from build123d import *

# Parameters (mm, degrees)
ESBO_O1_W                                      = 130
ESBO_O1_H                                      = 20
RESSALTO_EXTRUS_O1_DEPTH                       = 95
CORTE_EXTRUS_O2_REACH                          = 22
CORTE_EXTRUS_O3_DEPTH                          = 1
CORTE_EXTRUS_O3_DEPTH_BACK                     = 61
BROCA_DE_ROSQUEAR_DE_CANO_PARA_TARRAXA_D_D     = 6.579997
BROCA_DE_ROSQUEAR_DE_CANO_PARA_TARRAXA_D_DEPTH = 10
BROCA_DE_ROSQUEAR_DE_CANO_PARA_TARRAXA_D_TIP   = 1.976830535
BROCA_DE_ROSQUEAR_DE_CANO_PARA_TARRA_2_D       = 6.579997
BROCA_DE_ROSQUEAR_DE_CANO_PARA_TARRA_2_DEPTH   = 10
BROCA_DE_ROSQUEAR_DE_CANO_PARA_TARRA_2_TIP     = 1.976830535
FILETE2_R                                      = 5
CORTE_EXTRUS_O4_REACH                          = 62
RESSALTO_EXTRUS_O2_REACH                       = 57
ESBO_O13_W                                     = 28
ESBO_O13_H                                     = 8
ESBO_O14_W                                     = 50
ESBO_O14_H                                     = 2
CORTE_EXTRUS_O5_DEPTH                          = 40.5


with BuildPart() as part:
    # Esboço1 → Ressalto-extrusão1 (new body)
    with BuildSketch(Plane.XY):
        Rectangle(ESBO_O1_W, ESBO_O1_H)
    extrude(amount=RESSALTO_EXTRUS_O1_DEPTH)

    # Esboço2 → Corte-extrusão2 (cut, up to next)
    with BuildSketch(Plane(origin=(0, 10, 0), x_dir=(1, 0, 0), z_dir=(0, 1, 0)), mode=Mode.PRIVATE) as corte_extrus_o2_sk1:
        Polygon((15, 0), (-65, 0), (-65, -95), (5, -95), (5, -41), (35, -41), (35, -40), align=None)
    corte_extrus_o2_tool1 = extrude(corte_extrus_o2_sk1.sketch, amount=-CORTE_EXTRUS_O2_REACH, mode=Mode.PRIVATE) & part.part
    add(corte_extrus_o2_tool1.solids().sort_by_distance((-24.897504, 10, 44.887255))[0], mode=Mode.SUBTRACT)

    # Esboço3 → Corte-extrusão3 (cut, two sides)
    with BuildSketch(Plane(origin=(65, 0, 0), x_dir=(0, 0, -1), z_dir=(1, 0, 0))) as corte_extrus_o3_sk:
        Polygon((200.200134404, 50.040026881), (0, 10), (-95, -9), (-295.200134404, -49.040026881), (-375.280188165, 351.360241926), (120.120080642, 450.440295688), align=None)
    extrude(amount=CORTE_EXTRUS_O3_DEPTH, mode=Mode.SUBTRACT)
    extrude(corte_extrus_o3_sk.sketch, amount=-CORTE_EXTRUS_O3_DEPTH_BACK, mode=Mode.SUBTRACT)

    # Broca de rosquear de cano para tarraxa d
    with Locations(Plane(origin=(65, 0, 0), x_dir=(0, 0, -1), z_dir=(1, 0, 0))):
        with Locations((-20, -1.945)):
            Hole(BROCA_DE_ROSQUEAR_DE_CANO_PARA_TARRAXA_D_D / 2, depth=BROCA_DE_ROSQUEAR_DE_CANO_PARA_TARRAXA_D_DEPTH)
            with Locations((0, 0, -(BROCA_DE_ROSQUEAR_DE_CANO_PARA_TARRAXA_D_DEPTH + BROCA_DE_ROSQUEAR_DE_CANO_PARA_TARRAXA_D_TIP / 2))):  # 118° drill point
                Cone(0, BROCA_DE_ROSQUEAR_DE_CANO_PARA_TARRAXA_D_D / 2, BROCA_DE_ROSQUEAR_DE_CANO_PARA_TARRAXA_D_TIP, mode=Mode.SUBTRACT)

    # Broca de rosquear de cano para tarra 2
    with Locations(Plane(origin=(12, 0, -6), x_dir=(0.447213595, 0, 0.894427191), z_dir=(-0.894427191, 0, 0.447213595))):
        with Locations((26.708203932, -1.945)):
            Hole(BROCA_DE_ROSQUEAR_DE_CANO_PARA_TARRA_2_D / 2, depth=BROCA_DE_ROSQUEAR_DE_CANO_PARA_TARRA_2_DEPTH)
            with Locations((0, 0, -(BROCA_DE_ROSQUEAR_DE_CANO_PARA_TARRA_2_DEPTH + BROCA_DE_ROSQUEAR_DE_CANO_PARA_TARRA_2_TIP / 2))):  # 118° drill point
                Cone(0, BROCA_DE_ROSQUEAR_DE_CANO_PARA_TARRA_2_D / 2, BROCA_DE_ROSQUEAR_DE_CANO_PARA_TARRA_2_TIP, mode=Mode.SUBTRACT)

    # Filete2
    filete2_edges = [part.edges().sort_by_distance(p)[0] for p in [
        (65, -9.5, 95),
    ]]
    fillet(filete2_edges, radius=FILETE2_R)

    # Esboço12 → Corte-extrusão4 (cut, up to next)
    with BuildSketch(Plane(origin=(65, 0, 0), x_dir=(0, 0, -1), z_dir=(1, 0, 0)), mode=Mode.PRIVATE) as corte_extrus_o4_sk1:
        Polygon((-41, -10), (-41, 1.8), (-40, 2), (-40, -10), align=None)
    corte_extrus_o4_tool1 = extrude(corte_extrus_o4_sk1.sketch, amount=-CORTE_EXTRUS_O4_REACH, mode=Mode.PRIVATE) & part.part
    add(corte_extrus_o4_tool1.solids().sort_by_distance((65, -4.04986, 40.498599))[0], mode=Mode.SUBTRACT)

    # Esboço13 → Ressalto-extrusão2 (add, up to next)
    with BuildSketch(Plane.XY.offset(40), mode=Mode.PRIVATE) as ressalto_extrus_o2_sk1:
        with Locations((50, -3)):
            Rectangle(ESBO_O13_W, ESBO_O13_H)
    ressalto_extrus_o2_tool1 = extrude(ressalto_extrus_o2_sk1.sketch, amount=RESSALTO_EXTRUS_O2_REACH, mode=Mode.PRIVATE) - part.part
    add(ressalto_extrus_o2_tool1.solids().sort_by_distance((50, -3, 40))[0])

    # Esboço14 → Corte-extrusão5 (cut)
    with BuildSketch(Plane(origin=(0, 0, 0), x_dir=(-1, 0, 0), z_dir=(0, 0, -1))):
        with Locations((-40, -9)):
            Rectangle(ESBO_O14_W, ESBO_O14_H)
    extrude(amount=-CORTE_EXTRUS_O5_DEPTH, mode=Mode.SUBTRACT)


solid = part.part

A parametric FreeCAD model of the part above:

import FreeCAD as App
import Part
import Sketcher
from FreeCAD import Vector
Q = App.Units.Quantity


def edges_at(feature, points):
    """Names of the edges that pass closest to the given points."""
    edges = feature.Shape.Edges
    near = lambda p: min(range(len(edges)), key=lambda i: edges[i].distToShape(Part.Vertex(*p))[0])
    return sorted({f"Edge{near(p) + 1}" for p in points})

doc = App.newDocument("Part")
body = doc.addObject("PartDesign::Body", "Body")
body.AllowCompound = True

# Sketch on XY plane
sketch1 = doc.addObject("Sketcher::SketchObject", "Sketch")
body.addObject(sketch1)
sketch1.AttachmentSupport = (doc.XY_Plane, [""])
sketch1.MapMode = "FlatFace"
sketch1.addGeometry(Part.LineSegment(Vector(-65, 10, 0), Vector(-65, -10, 0)), False)
sketch1.addGeometry(Part.LineSegment(Vector(-65, -10, 0), Vector(65, -10, 0)), False)
sketch1.addGeometry(Part.LineSegment(Vector(65, -10, 0), Vector(65, 10, 0)), False)
sketch1.addGeometry(Part.LineSegment(Vector(65, 10, 0), Vector(-65, 10, 0)), False)
sketch1.addConstraint(Sketcher.Constraint("Coincident", 0, 2, 1, 1))
sketch1.addConstraint(Sketcher.Constraint("Coincident", 1, 2, 2, 1))
sketch1.addConstraint(Sketcher.Constraint("Coincident", 2, 2, 3, 1))
sketch1.addConstraint(Sketcher.Constraint("Coincident", 3, 2, 0, 1))
sketch1.addConstraint(Sketcher.Constraint("Vertical", 0))
sketch1.addConstraint(Sketcher.Constraint("Horizontal", 1))
sketch1.addConstraint(Sketcher.Constraint("Vertical", 2))
sketch1.addConstraint(Sketcher.Constraint("Horizontal", 3))
sketch1.addConstraint(Sketcher.Constraint("Symmetric", 0, 2, 2, 2, -1, 1))
sketch1.addConstraint(Sketcher.Constraint("DistanceX", 1, 1, 1, 2, Q("130 mm")))
sketch1.addConstraint(Sketcher.Constraint("DistanceY", 0, 2, 0, 1, Q("20 mm")))
pad1 = doc.addObject("PartDesign::Pad", "Pad")
body.addObject(pad1)
pad1.Profile = sketch1
pad1.Length = 95

# Sketch on XZ plane
sketch2 = doc.addObject("Sketcher::SketchObject", "Sketch001")
body.addObject(sketch2)
sketch2.AttachmentSupport = (doc.XZ_Plane, [""])
sketch2.MapMode = "FlatFace"
sketch2.AttachmentOffset = App.Placement(Vector(0, 0, -10), App.Rotation())
sketch2.addGeometry(Part.LineSegment(Vector(15, 0, 0), Vector(-65, 0, 0)), False)
sketch2.addGeometry(Part.LineSegment(Vector(-65, 0, 0), Vector(-65, 95, 0)), False)
sketch2.addGeometry(Part.LineSegment(Vector(-65, 95, 0), Vector(5, 95, 0)), False)
sketch2.addGeometry(Part.LineSegment(Vector(5, 95, 0), Vector(5, 41, 0)), False)
sketch2.addGeometry(Part.LineSegment(Vector(5, 41, 0), Vector(35, 41, 0)), False)
sketch2.addGeometry(Part.LineSegment(Vector(35, 41, 0), Vector(35, 40, 0)), False)
sketch2.addGeometry(Part.LineSegment(Vector(35, 40, 0), Vector(15, 0, 0)), False)
sketch2.addConstraint(Sketcher.Constraint("Coincident", 0, 2, 1, 1))
sketch2.addConstraint(Sketcher.Constraint("Coincident", 1, 2, 2, 1))
sketch2.addConstraint(Sketcher.Constraint("Coincident", 2, 2, 3, 1))
sketch2.addConstraint(Sketcher.Constraint("Coincident", 3, 2, 4, 1))
sketch2.addConstraint(Sketcher.Constraint("Coincident", 4, 2, 5, 1))
sketch2.addConstraint(Sketcher.Constraint("Coincident", 5, 2, 6, 1))
sketch2.addConstraint(Sketcher.Constraint("Coincident", 6, 2, 0, 1))
sketch2.addConstraint(Sketcher.Constraint("Horizontal", 0))
sketch2.addConstraint(Sketcher.Constraint("Vertical", 1))
sketch2.addConstraint(Sketcher.Constraint("Horizontal", 2))
sketch2.addConstraint(Sketcher.Constraint("Vertical", 3))
sketch2.addConstraint(Sketcher.Constraint("Horizontal", 4))
sketch2.addConstraint(Sketcher.Constraint("Vertical", 5))
sketch2.addConstraint(Sketcher.Constraint("PointOnObject", 0, 2, -1))
sketch2.addConstraint(Sketcher.Constraint("DistanceX", 0, 2, 0, 1, Q("80 mm")))
sketch2.addConstraint(Sketcher.Constraint("DistanceX", 2, 1, 2, 2, Q("70 mm")))
sketch2.addConstraint(Sketcher.Constraint("DistanceX", 4, 1, 4, 2, Q("30 mm")))
sketch2.addConstraint(Sketcher.Constraint("DistanceY", 1, 1, 1, 2, Q("95 mm")))
sketch2.addConstraint(Sketcher.Constraint("DistanceY", 3, 2, 3, 1, Q("54 mm")))
sketch2.addConstraint(Sketcher.Constraint("DistanceY", 5, 2, 5, 1, Q("1 mm")))
sketch2.addConstraint(Sketcher.Constraint("DistanceX", 0, 2, -1, 1, Q("65 mm")))
pocket1 = doc.addObject("PartDesign::Pocket", "Pocket")
body.addObject(pocket1)
pocket1.Profile = sketch2
pocket1.Type = "UpToFirst"
pocket1.Reversed = True

# Sketch on YZ plane
sketch3 = doc.addObject("Sketcher::SketchObject", "Sketch002")
body.addObject(sketch3)
sketch3.AttachmentSupport = (doc.YZ_Plane, [""])
sketch3.MapMode = "FlatFace"
sketch3.AttachmentOffset = App.Placement(Vector(0, 0, 65), App.Rotation())
sketch3.addGeometry(Part.LineSegment(Vector(-49, 295, 0), Vector(50, -200, 0)), False)
sketch3.addGeometry(Part.LineSegment(Vector(50, -200, 0), Vector(450, -120, 0)), False)
sketch3.addGeometry(Part.LineSegment(Vector(450, -120, 0), Vector(351, 375, 0)), False)
sketch3.addGeometry(Part.LineSegment(Vector(351, 375, 0), Vector(-49, 295, 0)), False)
sketch3.addConstraint(Sketcher.Constraint("Coincident", 0, 2, 1, 1))
sketch3.addConstraint(Sketcher.Constraint("Coincident", 1, 2, 2, 1))
sketch3.addConstraint(Sketcher.Constraint("Coincident", 2, 2, 3, 1))
sketch3.addConstraint(Sketcher.Constraint("Coincident", 3, 2, 0, 1))
sketch3.addConstraint(Sketcher.Constraint("Perpendicular", 0, 1))
sketch3.addConstraint(Sketcher.Constraint("Perpendicular", 1, 2))
sketch3.addConstraint(Sketcher.Constraint("Perpendicular", 2, 3))
sketch3.addConstraint(Sketcher.Constraint("DistanceY", 1, 2, -1, 1, Q("120.120081 mm")))
sketch3.addConstraint(Sketcher.Constraint("DistanceX", -1, 1, 2, 2, Q("351.360242 mm")))
sketch3.addConstraint(Sketcher.Constraint("DistanceY", -1, 1, 2, 2, Q("375.280188 mm")))
sketch3.addConstraint(Sketcher.Constraint("DistanceX", 0, 2, 1, 2, Q("400.400269 mm")))
sketch3.addConstraint(Sketcher.Constraint("Distance", 0, Q("505.211128 mm")))
pocket2 = doc.addObject("PartDesign::Pocket", "Pocket001")
body.addObject(pocket2)
pocket2.Profile = sketch3
pocket2.Type = "ThroughAll"
pocket2.Midplane = True

# Sketch on YZ plane
sketch4 = doc.addObject("Sketcher::SketchObject", "Sketch003")
body.addObject(sketch4)
sketch4.AttachmentSupport = (doc.YZ_Plane, [""])
sketch4.MapMode = "FlatFace"
sketch4.AttachmentOffset = App.Placement(Vector(0, 0, 65), App.Rotation())
sketch4.addGeometry(Part.Circle(Vector(-1.9, 20, 0), Vector(0, 0, 1), 3.3), False)
sketch4.addConstraint(Sketcher.Constraint("DistanceY", -1, 1, 0, 3, Q("20 mm")))
sketch4.addConstraint(Sketcher.Constraint("Diameter", 0, Q("6.579997 mm")))
sketch4.addConstraint(Sketcher.Constraint("DistanceX", 0, 3, -1, 1, Q("1.945 mm")))
doc.recompute()
hole = doc.addObject("PartDesign::Hole", "Hole")
body.addObject(hole)
hole.Profile = sketch4
hole.ThreadType = "None"
hole.Diameter = 6.579997
hole.DepthType = "Dimension"
hole.Depth = 10
hole.DrillPoint = "Angled"
hole.DrillPointAngle = 118

# Sketch on an angled plane
sketch5 = doc.addObject("Sketcher::SketchObject", "Sketch004")
body.addObject(sketch5)
sketch5.Placement = App.Placement(Vector(12, 0, -6), App.Rotation(Vector(0.447213595, 0, 0.894427191), Vector(0, 1, 0), Vector(-0.894427191, 0, 0.447213595), "ZXY"))
sketch5.addGeometry(Part.Circle(Vector(26.7, -1.9, 0), Vector(0, 0, 1), 3.3), False)
sketch5.addConstraint(Sketcher.Constraint("Diameter", 0, Q("6.579997 mm")))
sketch5.addConstraint(Sketcher.Constraint("DistanceY", 0, 3, -1, 1, Q("1.945 mm")))
sketch5.addConstraint(Sketcher.Constraint("DistanceX", -1, 1, 0, 3, Q("26.708204 mm")))
doc.recompute()
hole2 = doc.addObject("PartDesign::Hole", "Hole001")
body.addObject(hole2)
hole2.Profile = sketch5
hole2.ThreadType = "None"
hole2.Diameter = 6.579997
hole2.DepthType = "Dimension"
hole2.Depth = 10
hole2.DrillPoint = "Angled"
hole2.DrillPointAngle = 118
doc.recompute()

fillet = doc.addObject("PartDesign::Fillet", "Fillet")
body.addObject(fillet)
fillet.Base = (hole2, edges_at(hole2, [(65, -9.5, 95)]))
fillet.Radius = 5

# Sketch on YZ plane
sketch6 = doc.addObject("Sketcher::SketchObject", "Sketch005")
body.addObject(sketch6)
sketch6.AttachmentSupport = (doc.YZ_Plane, [""])
sketch6.MapMode = "FlatFace"
sketch6.AttachmentOffset = App.Placement(Vector(0, 0, 65), App.Rotation())
sketch6.addGeometry(Part.LineSegment(Vector(1.8, 41, 0), Vector(-10, 41, 0)), False)
sketch6.addGeometry(Part.LineSegment(Vector(-10, 41, 0), Vector(-10, 40, 0)), False)
sketch6.addGeometry(Part.LineSegment(Vector(-10, 40, 0), Vector(2, 40, 0)), False)
sketch6.addGeometry(Part.LineSegment(Vector(2, 40, 0), Vector(1.8, 41, 0)), False)
sketch6.addConstraint(Sketcher.Constraint("Coincident", 0, 2, 1, 1))
sketch6.addConstraint(Sketcher.Constraint("Coincident", 1, 2, 2, 1))
sketch6.addConstraint(Sketcher.Constraint("Coincident", 2, 2, 3, 1))
sketch6.addConstraint(Sketcher.Constraint("Coincident", 3, 2, 0, 1))
sketch6.addConstraint(Sketcher.Constraint("Horizontal", 0))
sketch6.addConstraint(Sketcher.Constraint("Vertical", 1))
sketch6.addConstraint(Sketcher.Constraint("Horizontal", 2))
sketch6.addConstraint(Sketcher.Constraint("DistanceX", 2, 1, 2, 2, Q("12 mm")))
sketch6.addConstraint(Sketcher.Constraint("DistanceY", 1, 2, 1, 1, Q("1 mm")))
sketch6.addConstraint(Sketcher.Constraint("DistanceX", 0, 2, 0, 1, Q("11.8 mm")))
sketch6.addConstraint(Sketcher.Constraint("DistanceX", 0, 2, -1, 1, Q("10 mm")))
sketch6.addConstraint(Sketcher.Constraint("DistanceY", -1, 1, 0, 2, Q("41 mm")))
pocket3 = doc.addObject("PartDesign::Pocket", "Pocket002")
body.addObject(pocket3)
pocket3.Profile = sketch6
pocket3.Type = "UpToFirst"

# Sketch on XY plane
sketch7 = doc.addObject("Sketcher::SketchObject", "Sketch006")
body.addObject(sketch7)
sketch7.AttachmentSupport = (doc.XY_Plane, [""])
sketch7.MapMode = "FlatFace"
sketch7.AttachmentOffset = App.Placement(Vector(0, 0, 40), App.Rotation())
sketch7.addGeometry(Part.LineSegment(Vector(36, 1, 0), Vector(36, -7, 0)), False)
sketch7.addGeometry(Part.LineSegment(Vector(36, -7, 0), Vector(64, -7, 0)), False)
sketch7.addGeometry(Part.LineSegment(Vector(64, -7, 0), Vector(64, 1, 0)), False)
sketch7.addGeometry(Part.LineSegment(Vector(64, 1, 0), Vector(36, 1, 0)), False)
sketch7.addConstraint(Sketcher.Constraint("Coincident", 0, 2, 1, 1))
sketch7.addConstraint(Sketcher.Constraint("Coincident", 1, 2, 2, 1))
sketch7.addConstraint(Sketcher.Constraint("Coincident", 2, 2, 3, 1))
sketch7.addConstraint(Sketcher.Constraint("Coincident", 3, 2, 0, 1))
sketch7.addConstraint(Sketcher.Constraint("Vertical", 0))
sketch7.addConstraint(Sketcher.Constraint("Horizontal", 1))
sketch7.addConstraint(Sketcher.Constraint("Vertical", 2))
sketch7.addConstraint(Sketcher.Constraint("Horizontal", 3))
sketch7.addConstraint(Sketcher.Constraint("DistanceX", 1, 1, 1, 2, Q("28 mm")))
sketch7.addConstraint(Sketcher.Constraint("DistanceY", 0, 2, 0, 1, Q("8 mm")))
sketch7.addConstraint(Sketcher.Constraint("DistanceX", -1, 1, 0, 2, Q("36 mm")))
sketch7.addConstraint(Sketcher.Constraint("DistanceY", 0, 2, -1, 1, Q("7 mm")))
pad2 = doc.addObject("PartDesign::Pad", "Pad001")
body.addObject(pad2)
pad2.Profile = sketch7
pad2.Type = "UpToFirst"

# Sketch on XY plane
sketch8 = doc.addObject("Sketcher::SketchObject", "Sketch007")
body.addObject(sketch8)
sketch8.AttachmentSupport = (doc.XY_Plane, [""])
sketch8.MapMode = "FlatFace"
sketch8.addGeometry(Part.LineSegment(Vector(65, -8, 0), Vector(65, -10, 0)), False)
sketch8.addGeometry(Part.LineSegment(Vector(65, -10, 0), Vector(15, -10, 0)), False)
sketch8.addGeometry(Part.LineSegment(Vector(15, -10, 0), Vector(15, -8, 0)), False)
sketch8.addGeometry(Part.LineSegment(Vector(15, -8, 0), Vector(65, -8, 0)), False)
sketch8.addConstraint(Sketcher.Constraint("Coincident", 0, 2, 1, 1))
sketch8.addConstraint(Sketcher.Constraint("Coincident", 1, 2, 2, 1))
sketch8.addConstraint(Sketcher.Constraint("Coincident", 2, 2, 3, 1))
sketch8.addConstraint(Sketcher.Constraint("Coincident", 3, 2, 0, 1))
sketch8.addConstraint(Sketcher.Constraint("Vertical", 0))
sketch8.addConstraint(Sketcher.Constraint("Horizontal", 1))
sketch8.addConstraint(Sketcher.Constraint("Vertical", 2))
sketch8.addConstraint(Sketcher.Constraint("Horizontal", 3))
sketch8.addConstraint(Sketcher.Constraint("DistanceX", 1, 2, 1, 1, Q("50 mm")))
sketch8.addConstraint(Sketcher.Constraint("DistanceY", 0, 2, 0, 1, Q("2 mm")))
sketch8.addConstraint(Sketcher.Constraint("DistanceX", -1, 1, 0, 2, Q("65 mm")))
sketch8.addConstraint(Sketcher.Constraint("DistanceY", 0, 2, -1, 1, Q("10 mm")))
pocket4 = doc.addObject("PartDesign::Pocket", "Pocket003")
body.addObject(pocket4)
pocket4.Profile = sketch8
pocket4.Length = 40.5
pocket4.Reversed = True

doc.recompute()
